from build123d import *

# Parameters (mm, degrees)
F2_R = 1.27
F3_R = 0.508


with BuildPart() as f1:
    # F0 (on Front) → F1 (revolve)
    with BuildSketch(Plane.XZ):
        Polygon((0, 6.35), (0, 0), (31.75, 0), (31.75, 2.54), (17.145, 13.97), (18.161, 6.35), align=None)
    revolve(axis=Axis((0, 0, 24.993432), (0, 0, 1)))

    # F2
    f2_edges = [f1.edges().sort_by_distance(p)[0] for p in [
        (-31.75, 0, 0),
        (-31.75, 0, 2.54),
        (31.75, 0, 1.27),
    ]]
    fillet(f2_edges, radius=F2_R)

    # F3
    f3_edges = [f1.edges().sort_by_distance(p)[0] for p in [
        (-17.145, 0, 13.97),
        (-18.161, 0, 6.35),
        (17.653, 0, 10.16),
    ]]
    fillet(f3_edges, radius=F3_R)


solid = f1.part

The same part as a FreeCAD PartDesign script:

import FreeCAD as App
import Part
import Sketcher

V = App.Vector
Q = App.Units.Quantity


def edges_at(feature, points):
    """Names of the edges that pass closest to the given points."""
    edges = feature.Shape.Edges
    near = lambda p: min(range(len(edges)), key=lambda i: edges[i].distToShape(Part.Vertex(*p))[0])
    return sorted({f"Edge{near(p) + 1}" for p in points})

doc = App.newDocument("Part")
body = doc.addObject("PartDesign::Body", "Body")

sketch1 = body.newObject("Sketcher::SketchObject", "Sketch")
sketch1.AttachmentSupport = (doc.getObject("XZ_Plane"), [""])
sketch1.MapMode = "FlatFace"
sketch1.addGeometry([
    Part.LineSegment(V(0, 6.35, 0), V(0, 0, 0)),
    Part.LineSegment(V(0, 0, 0), V(31.75, 0, 0)),
    Part.LineSegment(V(31.75, 0, 0), V(31.75, 2.54, 0)),
    Part.LineSegment(V(31.75, 2.54, 0), V(17.145, 13.97, 0)),
    Part.LineSegment(V(17.145, 13.97, 0), V(18.161, 6.35, 0)),
    Part.LineSegment(V(18.161, 6.35, 0), V(0, 6.35, 0)),
], False)
sketch1.addConstraint([
    Sketcher.Constraint("Coincident", 0, 2, 1, 1),
    Sketcher.Constraint("Coincident", 1, 2, 2, 1),
    Sketcher.Constraint("Coincident", 2, 2, 3, 1),
    Sketcher.Constraint("Coincident", 3, 2, 4, 1),
    Sketcher.Constraint("Coincident", 4, 2, 5, 1),
    Sketcher.Constraint("Coincident", 5, 2, 0, 1),
    Sketcher.Constraint("Vertical", 0),
    Sketcher.Constraint("Horizontal", 1),
    Sketcher.Constraint("Vertical", 2),
    Sketcher.Constraint("Horizontal", 5),
    Sketcher.Constraint("Coincident", 0, 2, -1, 1),
    Sketcher.Constraint("DistanceY", 2, 1, 2, 2, Q("0.1 in")),
    Sketcher.Constraint("DistanceX", 1, 1, 1, 2, Q("1.25 in")),
    Sketcher.Constraint("DistanceY", 0, 2, 0, 1, Q("0.25 in")),
    Sketcher.Constraint("DistanceY", 4, 2, 3, 2, Q("0.3 in")),
    Sketcher.Constraint("DistanceX", 5, 2, 5, 1, Q("0.715 in")),
    Sketcher.Constraint("DistanceX", 3, 2, 4, 2, Q("0.04 in")),
])
revolution = body.newObject("PartDesign::Revolution", "Revolution")
revolution.Profile = sketch1
revolution.ReferenceAxis = (sketch1, ["V_Axis"])
revolution.Angle = 360
doc.recompute()

fillet = body.newObject("PartDesign::Fillet", "Fillet")
fillet.Base = (revolution, edges_at(revolution, [(-31.75, 0, 0), (-31.75, 0, 2.54), (31.75, 0, 1.27)]))
fillet.Radius = Q("0.05 in")
doc.recompute()

fillet2 = body.newObject("PartDesign::Fillet", "Fillet001")
fillet2.Base = (fillet, edges_at(fillet, [(-17.145, 0, 13.97), (-18.161, 0, 6.35), (17.653, 0, 10.16)]))
fillet2.Radius = Q("0.02 in")

doc.recompute()
